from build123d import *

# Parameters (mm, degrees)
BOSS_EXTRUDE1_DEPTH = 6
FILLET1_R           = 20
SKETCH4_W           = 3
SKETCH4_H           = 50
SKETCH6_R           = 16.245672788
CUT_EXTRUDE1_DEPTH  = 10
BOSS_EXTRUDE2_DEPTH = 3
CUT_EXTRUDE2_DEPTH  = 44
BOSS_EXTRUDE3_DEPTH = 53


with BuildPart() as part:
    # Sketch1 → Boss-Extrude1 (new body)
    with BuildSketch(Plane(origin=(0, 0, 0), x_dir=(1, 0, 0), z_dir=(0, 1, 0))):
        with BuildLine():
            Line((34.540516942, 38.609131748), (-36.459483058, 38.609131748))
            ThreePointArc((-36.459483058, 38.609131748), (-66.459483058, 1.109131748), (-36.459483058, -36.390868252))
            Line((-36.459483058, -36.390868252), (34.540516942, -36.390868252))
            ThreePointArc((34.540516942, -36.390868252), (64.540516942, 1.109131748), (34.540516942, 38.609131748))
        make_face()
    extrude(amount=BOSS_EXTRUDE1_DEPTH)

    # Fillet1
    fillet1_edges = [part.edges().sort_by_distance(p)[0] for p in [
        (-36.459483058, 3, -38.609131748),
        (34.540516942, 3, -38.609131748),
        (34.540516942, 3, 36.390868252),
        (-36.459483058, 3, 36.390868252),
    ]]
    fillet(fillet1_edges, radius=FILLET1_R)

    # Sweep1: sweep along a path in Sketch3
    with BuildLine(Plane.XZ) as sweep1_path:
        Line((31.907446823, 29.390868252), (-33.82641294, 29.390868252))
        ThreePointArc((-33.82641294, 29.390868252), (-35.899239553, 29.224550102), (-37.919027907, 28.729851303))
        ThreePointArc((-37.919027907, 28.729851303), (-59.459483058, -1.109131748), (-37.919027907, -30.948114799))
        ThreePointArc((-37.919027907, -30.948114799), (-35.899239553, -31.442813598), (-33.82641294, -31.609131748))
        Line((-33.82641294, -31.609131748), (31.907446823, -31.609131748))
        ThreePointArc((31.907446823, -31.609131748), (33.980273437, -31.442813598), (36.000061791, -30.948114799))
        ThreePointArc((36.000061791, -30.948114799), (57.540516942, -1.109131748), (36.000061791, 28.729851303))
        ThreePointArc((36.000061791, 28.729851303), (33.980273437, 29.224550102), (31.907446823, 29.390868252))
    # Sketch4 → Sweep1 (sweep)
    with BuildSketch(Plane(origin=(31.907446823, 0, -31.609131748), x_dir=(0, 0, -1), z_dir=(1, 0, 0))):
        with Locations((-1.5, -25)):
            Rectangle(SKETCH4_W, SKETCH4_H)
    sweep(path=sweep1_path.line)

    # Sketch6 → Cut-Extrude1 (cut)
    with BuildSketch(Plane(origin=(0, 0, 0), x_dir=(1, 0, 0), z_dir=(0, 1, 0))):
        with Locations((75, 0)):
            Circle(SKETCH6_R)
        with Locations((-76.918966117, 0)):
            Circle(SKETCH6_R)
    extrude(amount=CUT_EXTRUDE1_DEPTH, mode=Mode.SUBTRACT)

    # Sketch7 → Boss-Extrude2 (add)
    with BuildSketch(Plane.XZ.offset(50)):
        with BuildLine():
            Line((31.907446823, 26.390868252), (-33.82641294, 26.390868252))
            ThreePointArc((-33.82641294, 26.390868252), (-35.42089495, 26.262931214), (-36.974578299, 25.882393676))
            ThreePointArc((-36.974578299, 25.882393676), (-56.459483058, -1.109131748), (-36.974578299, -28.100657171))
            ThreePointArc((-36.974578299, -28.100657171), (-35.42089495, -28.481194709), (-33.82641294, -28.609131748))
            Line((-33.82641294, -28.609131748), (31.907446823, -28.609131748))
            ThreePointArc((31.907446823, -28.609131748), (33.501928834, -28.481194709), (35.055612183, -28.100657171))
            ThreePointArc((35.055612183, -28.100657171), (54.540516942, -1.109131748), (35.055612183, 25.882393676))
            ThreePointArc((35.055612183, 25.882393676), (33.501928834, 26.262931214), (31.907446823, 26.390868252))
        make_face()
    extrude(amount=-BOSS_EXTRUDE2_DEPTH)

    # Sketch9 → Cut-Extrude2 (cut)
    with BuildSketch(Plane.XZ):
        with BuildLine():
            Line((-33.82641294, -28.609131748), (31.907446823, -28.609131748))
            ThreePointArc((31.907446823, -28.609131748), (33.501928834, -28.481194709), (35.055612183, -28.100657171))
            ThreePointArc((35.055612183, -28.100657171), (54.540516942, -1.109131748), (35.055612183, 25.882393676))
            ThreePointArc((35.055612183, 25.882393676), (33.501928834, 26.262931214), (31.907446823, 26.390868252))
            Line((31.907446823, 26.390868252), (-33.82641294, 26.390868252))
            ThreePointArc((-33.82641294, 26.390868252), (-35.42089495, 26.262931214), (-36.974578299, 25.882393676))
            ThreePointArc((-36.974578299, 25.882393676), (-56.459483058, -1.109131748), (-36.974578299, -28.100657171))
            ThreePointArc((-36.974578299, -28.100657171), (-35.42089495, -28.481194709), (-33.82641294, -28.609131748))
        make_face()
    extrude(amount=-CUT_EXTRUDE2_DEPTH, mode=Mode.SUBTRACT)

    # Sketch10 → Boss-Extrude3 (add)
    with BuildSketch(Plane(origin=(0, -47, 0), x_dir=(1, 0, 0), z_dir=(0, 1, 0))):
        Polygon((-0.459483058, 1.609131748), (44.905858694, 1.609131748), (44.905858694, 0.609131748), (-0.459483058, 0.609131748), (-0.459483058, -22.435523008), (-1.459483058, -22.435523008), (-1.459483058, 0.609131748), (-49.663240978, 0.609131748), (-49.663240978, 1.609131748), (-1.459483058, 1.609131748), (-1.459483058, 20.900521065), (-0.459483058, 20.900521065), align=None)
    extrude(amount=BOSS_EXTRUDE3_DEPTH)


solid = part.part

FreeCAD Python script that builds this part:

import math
import FreeCAD as App
import Part
import Sketcher


def edges_at(feature, points):
    """Names of the edges that pass closest to the given points."""
    edges = feature.Shape.Edges
    near = lambda p: min(range(len(edges)), key=lambda i: edges[i].distToShape(Part.Vertex(*p))[0])
    return sorted({f"Edge{near(p) + 1}" for p in points})

doc = App.newDocument("Part")
body = doc.addObject("PartDesign::Body", "Body")

sketch1 = doc.addObject("Sketcher::SketchObject", "Sketch")
body.addObject(sketch1)
sketch1.AttachmentSupport = (doc.XZ_Plane, [""])
sketch1.MapMode = "FlatFace"
sketch1.addGeometry([
    Part.LineSegment(App.Vector(35, -39, 0), App.Vector(-36, -39, 0)),
    Part.ArcOfCircle(Part.Circle(App.Vector(-28, -1, 0), App.Vector(0, 0, 1), 38), math.radians(103), math.radians(257)),
    Part.LineSegment(App.Vector(-36, 36, 0), App.Vector(35, 36, 0)),
    Part.ArcOfCircle(Part.Circle(App.Vector(26, -1, 0), App.Vector(0, 0, 1), 38), math.radians(-77), math.radians(77)),
], False)
sketch1.addConstraint([
    Sketcher.Constraint("Coincident", 0, 2, 1, 2),
    Sketcher.Constraint("Coincident", 1, 1, 2, 1),
    Sketcher.Constraint("Coincident", 2, 2, 3, 2),
    Sketcher.Constraint("Coincident", 3, 1, 0, 1),
    Sketcher.Constraint("Horizontal", 0),
    Sketcher.Constraint("Horizontal", 2),
    Sketcher.Constraint("Equal", 1, 3),
    Sketcher.Constraint("Horizontal", 1, 3, 3, 3),
    Sketcher.Constraint("Vertical", 0, 2, 1, 1),
    Sketcher.Constraint("DistanceX", 0, 2, 0, 1, 71.0),
    Sketcher.Constraint("DistanceY", 0, 2, 1, 1, 75.0),
    Sketcher.Constraint("Radius", 1, 38.4375),
    Sketcher.Constraint("DistanceY", 1, 3, -1, 1, 1.109132),
    Sketcher.Constraint("DistanceX", 1, 3, -1, 1, 28.021983),
])
pad1 = doc.addObject("PartDesign::Pad", "Pad")
body.addObject(pad1)
pad1.Profile = sketch1
pad1.Length = 6
pad1.Reversed = True
doc.recompute()

fillet = doc.addObject("PartDesign::Fillet", "Fillet")
body.addObject(fillet)
fillet.Base = (pad1, edges_at(pad1, [
    (-36.459, 3, -38.609),
    (34.541, 3, -38.609),
    (34.541, 3, 36.391),
    (-36.459, 3, 36.391),
]))
fillet.Radius = 20

sketch2 = doc.addObject("Sketcher::SketchObject", "Sketch001")
body.addObject(sketch2)
sketch2.AttachmentSupport = (doc.YZ_Plane, [""])
sketch2.MapMode = "FlatFace"
sketch2.AttachmentOffset = App.Placement(App.Vector(0, 0, 31.907447), App.Rotation())
sketch2.addGeometry([
    Part.LineSegment(App.Vector(0, -28.6, 0), App.Vector(-50, -28.6, 0)),
    Part.LineSegment(App.Vector(-50, -28.6, 0), App.Vector(-50, -31.6, 0)),
    Part.LineSegment(App.Vector(-50, -31.6, 0), App.Vector(0, -31.6, 0)),
    Part.LineSegment(App.Vector(0, -31.6, 0), App.Vector(0, -28.6, 0)),
], False)
sketch2.addConstraint([
    Sketcher.Constraint("Coincident", 0, 2, 1, 1),
    Sketcher.Constraint("Coincident", 1, 2, 2, 1),
    Sketcher.Constraint("Coincident", 2, 2, 3, 1),
    Sketcher.Constraint("Coincident", 3, 2, 0, 1),
    Sketcher.Constraint("Horizontal", 0),
    Sketcher.Constraint("Vertical", 1),
    Sketcher.Constraint("Horizontal", 2),
    Sketcher.Constraint("Vertical", 3),
    Sketcher.Constraint("PointOnObject", 2, 2, -2),
    Sketcher.Constraint("DistanceX", 0, 2, 0, 1, 50.0),
    Sketcher.Constraint("DistanceY", 1, 2, 1, 1, 3.0),
    Sketcher.Constraint("DistanceY", 0, 2, -1, 1, 28.609132),
])

sketch3 = doc.addObject("Sketcher::SketchObject", "Sketch002")
body.addObject(sketch3)
sketch3.AttachmentSupport = (doc.XZ_Plane, [""])
sketch3.MapMode = "FlatFace"
sketch3.addGeometry([
    Part.LineSegment(App.Vector(31.9, 29.4, 0), App.Vector(-33.8, 29.4, 0)),
    Part.ArcOfCircle(Part.Circle(App.Vector(-33.8, 16.4, 0), App.Vector(0, 0, 1), 13), math.radians(90), math.radians(108.35)),
    Part.ArcOfCircle(Part.Circle(App.Vector(-28, -1.1, 0), App.Vector(0, 0, 1), 31.4), math.radians(108), math.radians(252)),
    Part.ArcOfCircle(Part.Circle(App.Vector(-33.8, -18.6, 0), App.Vector(0, 0, 1), 13), math.radians(-108.35), math.radians(-90)),
    Part.LineSegment(App.Vector(-33.8, -31.6, 0), App.Vector(31.9, -31.6, 0)),
    Part.ArcOfCircle(Part.Circle(App.Vector(31.9, -18.6, 0), App.Vector(0, 0, 1), 13), math.radians(-90), math.radians(-71.65)),
    Part.ArcOfCircle(Part.Circle(App.Vector(26.1, -1.1, 0), App.Vector(0, 0, 1), 31.4), math.radians(-72), math.radians(72)),
    Part.ArcOfCircle(Part.Circle(App.Vector(31.9, 16.4, 0), App.Vector(0, 0, 1), 13), math.radians(71.65), math.radians(90)),
], False)
sketch3.addConstraint([
    Sketcher.Constraint("Tangent", 0, 2, 1, 1),
    Sketcher.Constraint("Tangent", 1, 2, 2, 1),
    Sketcher.Constraint("Tangent", 2, 2, 3, 1),
    Sketcher.Constraint("Tangent", 3, 2, 4, 1),
    Sketcher.Constraint("Tangent", 4, 2, 5, 1),
    Sketcher.Constraint("Tangent", 5, 2, 6, 1),
    Sketcher.Constraint("Tangent", 6, 2, 7, 1),
    Sketcher.Constraint("Tangent", 7, 2, 0, 1),
    Sketcher.Constraint("Horizontal", 0),
    Sketcher.Constraint("Horizontal", 4),
    Sketcher.Constraint("Equal", 1, 3),
    Sketcher.Constraint("Equal", 3, 5),
    Sketcher.Constraint("Equal", 2, 6),
    Sketcher.Constraint("Equal", 5, 7),
    Sketcher.Constraint("Horizontal", 2, 3, 6, 3),
    Sketcher.Constraint("Vertical", 1, 3, 3, 3),
    Sketcher.Constraint("Radius", 1, 13.0),
    Sketcher.Constraint("DistanceY", 3, 3, 1, 3, 35.0),
    Sketcher.Constraint("Radius", 2, 31.4375),
    Sketcher.Constraint("DistanceX", 2, 3, 6, 3, 54.125),
    Sketcher.Constraint("DistanceY", -1, 1, 1, 3, 16.390868),
    Sketcher.Constraint("DistanceX", -1, 1, 5, 2, 36.000062),
])
doc.recompute()

additivepipe = doc.addObject("PartDesign::AdditivePipe", "AdditivePipe")
body.addObject(additivepipe)
additivepipe.Profile = sketch2
additivepipe.Spine = (sketch3, ["Edge1", "Edge2", "Edge3", "Edge4", "Edge5", "Edge6", "Edge7", "Edge8"])

sketch4 = doc.addObject("Sketcher::SketchObject", "Sketch003")
body.addObject(sketch4)
sketch4.AttachmentSupport = (doc.XZ_Plane, [""])
sketch4.MapMode = "FlatFace"
sketch4.addGeometry([
    Part.Circle(App.Vector(75, 0, 0), App.Vector(0, 0, 1), 16),
    Part.Circle(App.Vector(-77, 0, 0), App.Vector(0, 0, 1), 16),
], False)
sketch4.addConstraint([
    Sketcher.Constraint("Equal", 0, 1),
    Sketcher.Constraint("PointOnObject", 0, 3, -1),
    Sketcher.Constraint("PointOnObject", 1, 3, -1),
    Sketcher.Constraint("DistanceX", -1, 1, 0, 3, 75.0),
    Sketcher.Constraint("Diameter", 0, 32.491346),
    Sketcher.Constraint("DistanceX", 1, 3, -1, 1, 76.918966),
])
pocket1 = doc.addObject("PartDesign::Pocket", "Pocket")
body.addObject(pocket1)
pocket1.Profile = sketch4
pocket1.Length = 10

sketch5 = doc.addObject("Sketcher::SketchObject", "Sketch004")
body.addObject(sketch5)
sketch5.AttachmentSupport = (doc.XZ_Plane, [""])
sketch5.MapMode = "FlatFace"
sketch5.AttachmentOffset = App.Placement(App.Vector(0, 0, 50), App.Rotation())
sketch5.addGeometry([
    Part.LineSegment(App.Vector(31.9, 26.4, 0), App.Vector(-33.8, 26.4, 0)),
    Part.ArcOfCircle(Part.Circle(App.Vector(-33.8, 16.4, 0), App.Vector(0, 0, 1), 10), math.radians(90), math.radians(108.35)),
    Part.ArcOfCircle(Part.Circle(App.Vector(-28, -1.1, 0), App.Vector(0, 0, 1), 28.4), math.radians(108), math.radians(252)),
    Part.ArcOfCircle(Part.Circle(App.Vector(-33.8, -18.6, 0), App.Vector(0, 0, 1), 10), math.radians(-108.35), math.radians(-90)),
    Part.LineSegment(App.Vector(-33.8, -28.6, 0), App.Vector(31.9, -28.6, 0)),
    Part.ArcOfCircle(Part.Circle(App.Vector(31.9, -18.6, 0), App.Vector(0, 0, 1), 10), math.radians(-90), math.radians(-71.65)),
    Part.ArcOfCircle(Part.Circle(App.Vector(26.1, -1.1, 0), App.Vector(0, 0, 1), 28.4), math.radians(-72), math.radians(72)),
    Part.ArcOfCircle(Part.Circle(App.Vector(31.9, 16.4, 0), App.Vector(0, 0, 1), 10), math.radians(71.65), math.radians(90)),
], False)
sketch5.addConstraint([
    Sketcher.Constraint("Tangent", 0, 2, 1, 1),
    Sketcher.Constraint("Tangent", 1, 2, 2, 1),
    Sketcher.Constraint("Tangent", 2, 2, 3, 1),
    Sketcher.Constraint("Tangent", 3, 2, 4, 1),
    Sketcher.Constraint("Tangent", 4, 2, 5, 1),
    Sketcher.Constraint("Tangent", 5, 2, 6, 1),
    Sketcher.Constraint("Tangent", 6, 2, 7, 1),
    Sketcher.Constraint("Tangent", 7, 2, 0, 1),
    Sketcher.Constraint("Horizontal", 0),
    Sketcher.Constraint("Horizontal", 4),
    Sketcher.Constraint("Equal", 1, 3),
    Sketcher.Constraint("Equal", 3, 5),
    Sketcher.Constraint("Equal", 2, 6),
    Sketcher.Constraint("Equal", 5, 7),
    Sketcher.Constraint("Horizontal", 2, 3, 6, 3),
    Sketcher.Constraint("Vertical", 1, 3, 3, 3),
    Sketcher.Constraint("Radius", 1, 10.0),
    Sketcher.Constraint("DistanceY", 3, 3, 1, 3, 35.0),
    Sketcher.Constraint("Radius", 2, 28.4375),
    Sketcher.Constraint("DistanceX", 2, 3, 6, 3, 54.125),
    Sketcher.Constraint("DistanceY", -1, 1, 1, 3, 16.390868),
    Sketcher.Constraint("DistanceX", 1, 2, -1, 1, 36.974578),
])
pad2 = doc.addObject("PartDesign::Pad", "Pad001")
body.addObject(pad2)
pad2.Profile = sketch5
pad2.Length = 3
pad2.Reversed = True

sketch6 = doc.addObject("Sketcher::SketchObject", "Sketch005")
body.addObject(sketch6)
sketch6.AttachmentSupport = (doc.XZ_Plane, [""])
sketch6.MapMode = "FlatFace"
sketch6.addGeometry([
    Part.LineSegment(App.Vector(-33.8, -28.6, 0), App.Vector(31.9, -28.6, 0)),
    Part.ArcOfCircle(Part.Circle(App.Vector(31.9, -18.6, 0), App.Vector(0, 0, 1), 10), math.radians(-90), math.radians(-71.65)),
    Part.ArcOfCircle(Part.Circle(App.Vector(26.1, -1.1, 0), App.Vector(0, 0, 1), 28.4), math.radians(-72), math.radians(72)),
    Part.ArcOfCircle(Part.Circle(App.Vector(31.9, 16.4, 0), App.Vector(0, 0, 1), 10), math.radians(71.65), math.radians(90)),
    Part.LineSegment(App.Vector(31.9, 26.4, 0), App.Vector(-33.8, 26.4, 0)),
    Part.ArcOfCircle(Part.Circle(App.Vector(-33.8, 16.4, 0), App.Vector(0, 0, 1), 10), math.radians(90), math.radians(108.35)),
    Part.ArcOfCircle(Part.Circle(App.Vector(-28, -1.1, 0), App.Vector(0, 0, 1), 28.4), math.radians(108), math.radians(252)),
    Part.ArcOfCircle(Part.Circle(App.Vector(-33.8, -18.6, 0), App.Vector(0, 0, 1), 10), math.radians(-108.35), math.radians(-90)),
], False)
sketch6.addConstraint([
    Sketcher.Constraint("Tangent", 0, 2, 1, 1),
    Sketcher.Constraint("Tangent", 1, 2, 2, 1),
    Sketcher.Constraint("Tangent", 2, 2, 3, 1),
    Sketcher.Constraint("Tangent", 3, 2, 4, 1),
    Sketcher.Constraint("Tangent", 4, 2, 5, 1),
    Sketcher.Constraint("Tangent", 5, 2, 6, 1),
    Sketcher.Constraint("Tangent", 6, 2, 7, 1),
    Sketcher.Constraint("Tangent", 7, 2, 0, 1),
    Sketcher.Constraint("Horizontal", 0),
    Sketcher.Constraint("Horizontal", 4),
    Sketcher.Constraint("Equal", 1, 3),
    Sketcher.Constraint("Equal", 3, 5),
    Sketcher.Constraint("Equal", 2, 6),
    Sketcher.Constraint("Equal", 5, 7),
    Sketcher.Constraint("Horizontal", 2, 3, 6, 3),
    Sketcher.Constraint("Vertical", 1, 3, 3, 3),
    Sketcher.Constraint("Radius", 1, 10.0),
    Sketcher.Constraint("DistanceY", 1, 3, 3, 3, 35.0),
    Sketcher.Constraint("Radius", 2, 28.4375),
    Sketcher.Constraint("DistanceX", 6, 3, 2, 3, 54.125),
    Sketcher.Constraint("DistanceY", 1, 3, -1, 1, 18.609132),
    Sketcher.Constraint("DistanceX", 5, 2, -1, 1, 36.974578),
])
pocket2 = doc.addObject("PartDesign::Pocket", "Pocket001")
body.addObject(pocket2)
pocket2.Profile = sketch6
pocket2.Length = 44

sketch7 = doc.addObject("Sketcher::SketchObject", "Sketch006")
body.addObject(sketch7)
sketch7.AttachmentSupport = (doc.XZ_Plane, [""])
sketch7.MapMode = "FlatFace"
sketch7.AttachmentOffset = App.Placement(App.Vector(0, 0, 47), App.Rotation())
sketch7.addGeometry([
    Part.LineSegment(App.Vector(44.9, -1.6, 0), App.Vector(-0.5, -1.6, 0)),
    Part.LineSegment(App.Vector(-0.5, -1.6, 0), App.Vector(-0.5, -20.9, 0)),
    Part.LineSegment(App.Vector(-0.5, -20.9, 0), App.Vector(-1.5, -20.9, 0)),
    Part.LineSegment(App.Vector(-1.5, -20.9, 0), App.Vector(-1.5, -1.6, 0)),
    Part.LineSegment(App.Vector(-1.5, -1.6, 0), App.Vector(-49.7, -1.6, 0)),
    Part.LineSegment(App.Vector(-49.7, -1.6, 0), App.Vector(-49.7, -0.6, 0)),
    Part.LineSegment(App.Vector(-49.7, -0.6, 0), App.Vector(-1.5, -0.6, 0)),
    Part.LineSegment(App.Vector(-1.5, -0.6, 0), App.Vector(-1.5, 22.4, 0)),
    Part.LineSegment(App.Vector(-1.5, 22.4, 0), App.Vector(-0.5, 22.4, 0)),
    Part.LineSegment(App.Vector(-0.5, 22.4, 0), App.Vector(-0.5, -0.6, 0)),
    Part.LineSegment(App.Vector(-0.5, -0.6, 0), App.Vector(44.9, -0.6, 0)),
    Part.LineSegment(App.Vector(44.9, -0.6, 0), App.Vector(44.9, -1.6, 0)),
], False)
sketch7.addConstraint([
    Sketcher.Constraint("Coincident", 0, 2, 1, 1),
    Sketcher.Constraint("Coincident", 1, 2, 2, 1),
    Sketcher.Constraint("Coincident", 2, 2, 3, 1),
    Sketcher.Constraint("Coincident", 3, 2, 4, 1),
    Sketcher.Constraint("Coincident", 4, 2, 5, 1),
    Sketcher.Constraint("Coincident", 5, 2, 6, 1),
    Sketcher.Constraint("Coincident", 6, 2, 7, 1),
    Sketcher.Constraint("Coincident", 7, 2, 8, 1),
    Sketcher.Constraint("Coincident", 8, 2, 9, 1),
    Sketcher.Constraint("Coincident", 9, 2, 10, 1),
    Sketcher.Constraint("Coincident", 10, 2, 11, 1),
    Sketcher.Constraint("Coincident", 11, 2, 0, 1),
    Sketcher.Constraint("Horizontal", 0),
    Sketcher.Constraint("Vertical", 1),
    Sketcher.Constraint("Horizontal", 2),
    Sketcher.Constraint("Vertical", 3),
    Sketcher.Constraint("Horizontal", 4),
    Sketcher.Constraint("Vertical", 5),
    Sketcher.Constraint("Horizontal", 6),
    Sketcher.Constraint("Vertical", 7),
    Sketcher.Constraint("Horizontal", 8),
    Sketcher.Constraint("Vertical", 9),
    Sketcher.Constraint("Horizontal", 10),
    Sketcher.Constraint("Vertical", 11),
    Sketcher.Constraint("Horizontal", 0, 2, 3, 2),
    Sketcher.Constraint("Horizontal", 6, 2, 9, 2),
    Sketcher.Constraint("Vertical", 3, 2, 6, 2),
    Sketcher.Constraint("Vertical", 1, 2, 8, 2),
    Sketcher.Constraint("Equal", 8, 5),
    Sketcher.Constraint("DistanceX", 2, 2, 2, 1, 1.0),
    Sketcher.Constraint("DistanceX", 0, 2, 0, 1, 45.365342),
    Sketcher.Constraint("DistanceY", 1, 2, 1, 1, 19.291389),
    Sketcher.Constraint("DistanceX", 4, 2, 4, 1, 48.203758),
    Sketcher.Constraint("DistanceY", 7, 1, 7, 2, 23.044655),
    Sketcher.Constraint("DistanceY", 0, 2, -1, 1, 1.609132),
    Sketcher.Constraint("DistanceX", 4, 2, -1, 1, 49.663241),
])
pad3 = doc.addObject("PartDesign::Pad", "Pad002")
body.addObject(pad3)
pad3.Profile = sketch7
pad3.Length = 53
pad3.Reversed = True

doc.recompute()
